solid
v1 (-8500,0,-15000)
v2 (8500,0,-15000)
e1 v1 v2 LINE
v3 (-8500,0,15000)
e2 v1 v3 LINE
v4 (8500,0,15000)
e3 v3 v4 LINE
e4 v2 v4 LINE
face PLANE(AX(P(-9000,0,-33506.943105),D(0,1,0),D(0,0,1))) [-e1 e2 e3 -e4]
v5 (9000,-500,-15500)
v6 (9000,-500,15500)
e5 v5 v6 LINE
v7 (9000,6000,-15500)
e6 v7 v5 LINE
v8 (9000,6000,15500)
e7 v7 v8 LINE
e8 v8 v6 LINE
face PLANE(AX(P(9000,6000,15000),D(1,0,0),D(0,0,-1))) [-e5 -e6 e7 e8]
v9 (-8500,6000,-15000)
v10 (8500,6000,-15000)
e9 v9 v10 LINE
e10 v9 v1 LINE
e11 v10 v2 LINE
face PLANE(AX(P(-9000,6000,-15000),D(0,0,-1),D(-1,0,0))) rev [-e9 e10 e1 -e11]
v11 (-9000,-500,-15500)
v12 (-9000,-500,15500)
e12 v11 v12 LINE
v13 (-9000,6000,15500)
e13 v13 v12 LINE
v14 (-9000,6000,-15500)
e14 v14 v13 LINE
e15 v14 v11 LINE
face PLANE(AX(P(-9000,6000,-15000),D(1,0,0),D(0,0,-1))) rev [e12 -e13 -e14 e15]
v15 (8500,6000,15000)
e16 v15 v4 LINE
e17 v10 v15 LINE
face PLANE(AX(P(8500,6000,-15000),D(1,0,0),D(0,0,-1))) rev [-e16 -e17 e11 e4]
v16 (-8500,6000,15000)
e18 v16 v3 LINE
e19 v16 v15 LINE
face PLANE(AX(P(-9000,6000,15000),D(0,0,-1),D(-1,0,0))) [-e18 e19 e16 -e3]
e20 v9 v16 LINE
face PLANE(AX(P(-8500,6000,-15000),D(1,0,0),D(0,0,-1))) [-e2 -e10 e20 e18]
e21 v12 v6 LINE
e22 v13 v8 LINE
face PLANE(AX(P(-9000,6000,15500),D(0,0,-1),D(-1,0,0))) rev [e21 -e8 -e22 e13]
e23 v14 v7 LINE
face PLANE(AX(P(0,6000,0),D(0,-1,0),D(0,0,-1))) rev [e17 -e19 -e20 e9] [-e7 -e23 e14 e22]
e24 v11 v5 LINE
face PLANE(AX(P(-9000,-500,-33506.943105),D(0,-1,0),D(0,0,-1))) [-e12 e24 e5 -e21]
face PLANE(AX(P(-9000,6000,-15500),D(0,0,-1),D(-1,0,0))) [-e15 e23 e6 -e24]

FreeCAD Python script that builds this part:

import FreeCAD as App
import Part
import Sketcher


def add_polygon(sketch, points):
    """Adds a closed chain of lines whose ends are joined by coincident constraints."""
    first, n = sketch.GeometryCount, len(points)
    for a, b in zip(points, points[1:] + points[:1]):
        sketch.addGeometry(Part.LineSegment(App.Vector(*a, 0), App.Vector(*b, 0)), False)
    for i in range(n):
        sketch.addConstraint(Sketcher.Constraint("Coincident", first + i, 2, first + (i + 1) % n, 1))

doc = App.newDocument("Part")
body = doc.addObject("PartDesign::Body", "Body")

sketch1 = body.newObject("Sketcher::SketchObject", "Sketch")
sketch1.AttachmentSupport = (doc.getObject("XZ_Plane"), [""])
sketch1.MapMode = "FlatFace"
add_polygon(sketch1, [(-9000, -15500), (-9000, 15500), (9000, 15500), (9000, -15500)])
add_polygon(sketch1, [(8500, 15000), (-8500, 15000), (-8500, -15000), (8500, -15000)])
sketch1.addConstraint([
    Sketcher.Constraint("Vertical", 0),
    Sketcher.Constraint("Horizontal", 1),
    Sketcher.Constraint("Vertical", 2),
    Sketcher.Constraint("Horizontal", 3),
    Sketcher.Constraint("Horizontal", 4),
    Sketcher.Constraint("Vertical", 5),
    Sketcher.Constraint("Horizontal", 6),
    Sketcher.Constraint("Vertical", 7),
    Sketcher.Constraint("Symmetric", 0, 2, 2, 2, -1, 1),
    Sketcher.Constraint("Symmetric", 4, 2, 6, 2, -1, 1),
    Sketcher.Constraint("DistanceX", 1, 1, 1, 2, 18000.0),
    Sketcher.Constraint("DistanceX", 4, 2, 4, 1, 17000.0),
    Sketcher.Constraint("DistanceY", 0, 1, 0, 2, 31000.0),
    Sketcher.Constraint("DistanceY", 5, 2, 5, 1, 30000.0),
])
pad1 = body.newObject("PartDesign::Pad", "Pad")
pad1.Profile = sketch1
pad1.Length = 6000
pad1.Reversed = True

sketch2 = body.newObject("Sketcher::SketchObject", "Sketch001")
sketch2.AttachmentSupport = (doc.getObject("XY_Plane"), [""])
sketch2.MapMode = "FlatFace"
sketch2.AttachmentOffset = App.Placement(App.Vector(0, 0, 15500), App.Rotation())
add_polygon(sketch2, [(-9000, 0), (-9000, -500), (9000, -500), (9000, 0)])
sketch2.addConstraint([
    Sketcher.Constraint("Vertical", 0),
    Sketcher.Constraint("Horizontal", 1),
    Sketcher.Constraint("Vertical", 2),
    Sketcher.Constraint("Horizontal", 3),
    Sketcher.Constraint("Symmetric", 2, 2, 3, 2, -1, 1),
    Sketcher.Constraint("DistanceX", 1, 1, 1, 2, 18000.0),
    Sketcher.Constraint("DistanceY", 0, 2, 0, 1, 500.0),
])
pad2 = body.newObject("PartDesign::Pad", "Pad001")
pad2.Profile = sketch2
pad2.Length = 31000
pad2.Reversed = True

doc.recompute()
